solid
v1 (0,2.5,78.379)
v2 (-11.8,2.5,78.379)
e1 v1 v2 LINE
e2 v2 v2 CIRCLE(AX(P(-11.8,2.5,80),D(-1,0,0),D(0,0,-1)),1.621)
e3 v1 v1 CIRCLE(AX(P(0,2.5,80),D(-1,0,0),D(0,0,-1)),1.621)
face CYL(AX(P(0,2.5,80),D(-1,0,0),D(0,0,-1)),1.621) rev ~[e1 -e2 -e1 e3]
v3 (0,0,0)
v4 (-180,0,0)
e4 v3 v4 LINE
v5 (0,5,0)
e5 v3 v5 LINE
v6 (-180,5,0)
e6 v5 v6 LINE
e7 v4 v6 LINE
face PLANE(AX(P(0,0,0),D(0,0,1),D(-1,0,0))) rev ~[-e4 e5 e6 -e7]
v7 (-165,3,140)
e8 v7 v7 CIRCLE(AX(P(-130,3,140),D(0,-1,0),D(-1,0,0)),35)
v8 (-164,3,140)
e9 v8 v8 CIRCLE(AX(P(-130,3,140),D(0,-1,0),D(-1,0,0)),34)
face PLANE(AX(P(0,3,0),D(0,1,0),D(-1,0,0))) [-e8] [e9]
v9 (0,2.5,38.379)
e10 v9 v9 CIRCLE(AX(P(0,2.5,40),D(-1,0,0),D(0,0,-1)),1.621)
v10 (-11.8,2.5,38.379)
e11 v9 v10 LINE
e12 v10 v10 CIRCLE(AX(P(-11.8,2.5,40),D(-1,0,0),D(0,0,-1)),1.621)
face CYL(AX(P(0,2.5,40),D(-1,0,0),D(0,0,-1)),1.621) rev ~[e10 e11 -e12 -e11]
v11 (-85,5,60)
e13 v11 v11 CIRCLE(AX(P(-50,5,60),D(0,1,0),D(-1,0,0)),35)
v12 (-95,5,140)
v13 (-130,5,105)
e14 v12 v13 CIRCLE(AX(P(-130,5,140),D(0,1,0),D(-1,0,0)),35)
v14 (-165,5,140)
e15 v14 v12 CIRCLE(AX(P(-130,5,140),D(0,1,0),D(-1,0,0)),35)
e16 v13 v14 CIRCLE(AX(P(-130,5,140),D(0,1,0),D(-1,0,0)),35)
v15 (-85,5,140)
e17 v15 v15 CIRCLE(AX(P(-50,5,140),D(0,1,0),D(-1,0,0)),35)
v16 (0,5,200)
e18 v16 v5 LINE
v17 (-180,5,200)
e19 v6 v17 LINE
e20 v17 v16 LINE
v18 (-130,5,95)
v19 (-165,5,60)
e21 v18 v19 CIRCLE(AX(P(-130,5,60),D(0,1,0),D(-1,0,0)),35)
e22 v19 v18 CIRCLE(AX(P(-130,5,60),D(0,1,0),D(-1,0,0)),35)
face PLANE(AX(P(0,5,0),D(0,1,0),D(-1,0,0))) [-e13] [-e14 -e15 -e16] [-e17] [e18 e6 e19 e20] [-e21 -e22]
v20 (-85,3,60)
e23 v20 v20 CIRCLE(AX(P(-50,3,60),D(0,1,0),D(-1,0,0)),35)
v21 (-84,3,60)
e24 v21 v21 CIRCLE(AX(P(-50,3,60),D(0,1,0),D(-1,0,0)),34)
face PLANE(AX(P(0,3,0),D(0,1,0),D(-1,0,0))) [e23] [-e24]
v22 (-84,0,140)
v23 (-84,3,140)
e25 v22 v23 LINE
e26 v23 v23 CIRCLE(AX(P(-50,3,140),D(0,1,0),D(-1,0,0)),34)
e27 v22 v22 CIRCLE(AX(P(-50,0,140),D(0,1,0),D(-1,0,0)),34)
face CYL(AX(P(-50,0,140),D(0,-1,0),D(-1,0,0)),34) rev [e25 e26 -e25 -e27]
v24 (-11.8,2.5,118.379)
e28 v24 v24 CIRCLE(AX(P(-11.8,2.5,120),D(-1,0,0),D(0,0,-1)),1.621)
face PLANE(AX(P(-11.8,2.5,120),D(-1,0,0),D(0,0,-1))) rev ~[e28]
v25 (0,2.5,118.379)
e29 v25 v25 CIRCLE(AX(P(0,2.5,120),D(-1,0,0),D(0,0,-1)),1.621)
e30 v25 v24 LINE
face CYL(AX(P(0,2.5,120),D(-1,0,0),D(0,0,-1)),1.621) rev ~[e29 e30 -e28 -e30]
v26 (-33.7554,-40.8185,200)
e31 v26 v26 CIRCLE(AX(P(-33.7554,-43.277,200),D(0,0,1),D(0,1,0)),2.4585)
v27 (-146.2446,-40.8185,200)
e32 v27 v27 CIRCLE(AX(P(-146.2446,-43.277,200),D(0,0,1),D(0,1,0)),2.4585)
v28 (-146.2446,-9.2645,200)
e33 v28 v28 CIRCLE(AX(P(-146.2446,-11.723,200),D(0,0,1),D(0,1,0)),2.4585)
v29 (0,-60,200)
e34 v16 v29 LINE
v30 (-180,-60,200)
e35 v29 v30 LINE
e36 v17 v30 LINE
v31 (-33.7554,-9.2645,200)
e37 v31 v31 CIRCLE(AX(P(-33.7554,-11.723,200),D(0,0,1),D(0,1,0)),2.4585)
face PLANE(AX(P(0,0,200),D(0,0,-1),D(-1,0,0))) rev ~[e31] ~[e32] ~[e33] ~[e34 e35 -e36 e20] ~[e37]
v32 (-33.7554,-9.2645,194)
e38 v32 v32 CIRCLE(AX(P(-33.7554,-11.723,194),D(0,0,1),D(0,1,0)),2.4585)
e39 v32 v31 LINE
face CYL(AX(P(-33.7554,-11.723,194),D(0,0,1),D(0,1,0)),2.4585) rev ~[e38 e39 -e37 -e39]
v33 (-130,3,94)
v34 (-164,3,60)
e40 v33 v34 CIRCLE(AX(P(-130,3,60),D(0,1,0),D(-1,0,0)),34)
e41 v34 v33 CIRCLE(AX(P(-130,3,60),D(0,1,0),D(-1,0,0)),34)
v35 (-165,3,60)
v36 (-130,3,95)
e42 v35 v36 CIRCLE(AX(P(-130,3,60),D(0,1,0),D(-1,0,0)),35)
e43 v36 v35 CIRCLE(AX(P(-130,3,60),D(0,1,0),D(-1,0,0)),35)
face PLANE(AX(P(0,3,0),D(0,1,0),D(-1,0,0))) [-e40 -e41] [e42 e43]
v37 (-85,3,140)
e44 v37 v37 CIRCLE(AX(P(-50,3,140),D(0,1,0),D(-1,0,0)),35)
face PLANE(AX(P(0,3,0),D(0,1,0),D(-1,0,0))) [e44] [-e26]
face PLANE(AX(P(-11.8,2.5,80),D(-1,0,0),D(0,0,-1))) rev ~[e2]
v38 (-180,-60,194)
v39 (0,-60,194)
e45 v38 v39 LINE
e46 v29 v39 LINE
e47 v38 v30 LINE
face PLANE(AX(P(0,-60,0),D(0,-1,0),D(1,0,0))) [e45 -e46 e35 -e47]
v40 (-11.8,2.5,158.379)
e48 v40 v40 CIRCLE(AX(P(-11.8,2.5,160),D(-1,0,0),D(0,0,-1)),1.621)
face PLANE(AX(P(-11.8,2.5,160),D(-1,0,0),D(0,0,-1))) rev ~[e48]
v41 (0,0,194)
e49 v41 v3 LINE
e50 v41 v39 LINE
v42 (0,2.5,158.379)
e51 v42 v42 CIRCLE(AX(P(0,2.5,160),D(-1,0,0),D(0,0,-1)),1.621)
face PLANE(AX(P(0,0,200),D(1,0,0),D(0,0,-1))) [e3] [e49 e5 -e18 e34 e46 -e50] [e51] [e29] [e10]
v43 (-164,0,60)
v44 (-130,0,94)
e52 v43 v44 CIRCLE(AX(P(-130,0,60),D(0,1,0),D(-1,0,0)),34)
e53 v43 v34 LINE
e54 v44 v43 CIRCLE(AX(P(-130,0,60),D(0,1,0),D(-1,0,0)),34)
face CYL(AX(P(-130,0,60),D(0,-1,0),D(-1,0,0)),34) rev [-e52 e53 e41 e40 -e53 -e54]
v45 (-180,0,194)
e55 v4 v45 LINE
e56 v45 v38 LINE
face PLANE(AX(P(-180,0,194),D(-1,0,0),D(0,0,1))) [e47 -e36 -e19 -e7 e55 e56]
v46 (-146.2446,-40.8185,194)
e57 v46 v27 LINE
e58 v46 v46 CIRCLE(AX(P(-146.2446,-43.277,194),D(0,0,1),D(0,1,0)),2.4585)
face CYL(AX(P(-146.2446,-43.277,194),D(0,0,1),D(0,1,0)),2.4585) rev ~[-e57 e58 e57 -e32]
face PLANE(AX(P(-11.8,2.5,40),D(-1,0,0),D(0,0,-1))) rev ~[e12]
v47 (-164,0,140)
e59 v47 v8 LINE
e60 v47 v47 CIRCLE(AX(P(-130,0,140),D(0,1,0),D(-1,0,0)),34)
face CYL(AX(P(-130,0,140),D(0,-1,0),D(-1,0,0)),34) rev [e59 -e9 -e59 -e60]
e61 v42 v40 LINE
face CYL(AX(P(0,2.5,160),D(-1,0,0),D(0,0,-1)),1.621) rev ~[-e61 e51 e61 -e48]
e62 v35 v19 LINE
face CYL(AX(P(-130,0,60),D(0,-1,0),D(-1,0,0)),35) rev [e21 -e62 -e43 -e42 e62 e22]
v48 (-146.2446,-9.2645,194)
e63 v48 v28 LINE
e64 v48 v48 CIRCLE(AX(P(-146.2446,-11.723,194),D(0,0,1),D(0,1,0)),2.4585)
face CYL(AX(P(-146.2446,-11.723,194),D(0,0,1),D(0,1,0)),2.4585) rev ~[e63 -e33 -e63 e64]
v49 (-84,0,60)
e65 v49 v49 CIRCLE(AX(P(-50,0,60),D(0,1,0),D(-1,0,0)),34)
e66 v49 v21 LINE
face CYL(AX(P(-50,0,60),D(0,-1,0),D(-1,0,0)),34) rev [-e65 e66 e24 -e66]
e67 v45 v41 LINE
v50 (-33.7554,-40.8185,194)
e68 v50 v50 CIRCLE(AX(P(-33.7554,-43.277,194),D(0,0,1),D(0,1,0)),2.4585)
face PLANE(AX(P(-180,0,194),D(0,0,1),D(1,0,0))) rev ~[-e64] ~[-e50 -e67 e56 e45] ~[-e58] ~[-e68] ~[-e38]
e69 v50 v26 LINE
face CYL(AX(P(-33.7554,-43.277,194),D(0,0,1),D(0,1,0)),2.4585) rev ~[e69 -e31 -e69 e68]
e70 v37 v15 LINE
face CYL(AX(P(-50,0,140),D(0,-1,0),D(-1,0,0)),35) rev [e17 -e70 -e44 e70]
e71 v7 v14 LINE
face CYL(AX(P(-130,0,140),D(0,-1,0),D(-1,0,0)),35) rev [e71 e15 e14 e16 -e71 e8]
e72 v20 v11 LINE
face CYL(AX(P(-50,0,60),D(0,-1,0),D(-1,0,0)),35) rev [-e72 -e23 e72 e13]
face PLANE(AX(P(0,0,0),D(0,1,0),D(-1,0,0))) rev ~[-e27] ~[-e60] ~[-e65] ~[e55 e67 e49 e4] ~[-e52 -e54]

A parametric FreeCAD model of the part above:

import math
import FreeCAD as App
import Part
import Sketcher
from FreeCAD import Vector


def add_polygon(sketch, points):
    """Adds a closed chain of lines whose ends are joined by coincident constraints."""
    first, n = sketch.GeometryCount, len(points)
    for a, b in zip(points, points[1:] + points[:1]):
        sketch.addGeometry(Part.LineSegment(App.Vector(*a, 0), App.Vector(*b, 0)), False)
    for i in range(n):
        sketch.addConstraint(Sketcher.Constraint("Coincident", first + i, 2, first + (i + 1) % n, 1))

doc = App.newDocument("Part")
params = doc.addObject("Spreadsheet::Sheet", "Params")
for row, (alias, value) in enumerate([
    ("sketch1_diameter", "70 mm"),
    ("sketch1_width", "180 mm"),
    ("sketch1_height", "200 mm"),
    ("pad1_length", "5 mm"),
    ("sketch2_diameter", "70 mm"),
    ("sketch2_diameter2", "68 mm"),
    ("pad2_length", "3 mm"),
    ("hole_diameter", "3.242 mm"),
    ("hole_depth", "11.8 mm"),
    ("sketch4_height", "6 mm"),
    ("sketch4_width", "180 mm"),
    ("pad3_length", "60 mm"),
    ("hole2_diameter", "4.917 mm"),
    ("hole2_depth", "17.1 mm"),
], start=1):
    params.set(f"A{row}", alias)
    params.set(f"B{row}", "=" + value)
    params.setAlias(f"B{row}", alias)

body = doc.addObject("PartDesign::Body", "Body")

# Sketch on XZ plane
sketch1 = doc.addObject("Sketcher::SketchObject", "Sketch")
body.addObject(sketch1)
sketch1.AttachmentSupport = (doc.XZ_Plane, [""])
sketch1.MapMode = "FlatFace"
add_polygon(sketch1, [(0, 200), (0, 0), (-180, 0), (-180, 200)])  # lines 0-3
sketch1.addGeometry(Part.Circle(Vector(-50, 60, 0), Vector(0, 0, 1), 35), False)  # 4
sketch1.addGeometry(Part.Circle(Vector(-130, 60, 0), Vector(0, 0, 1), 35), False)  # 5
sketch1.addGeometry(Part.Circle(Vector(-50, 140, 0), Vector(0, 0, 1), 35), False)  # 6
sketch1.addGeometry(Part.ArcOfCircle(Part.Circle(Vector(-130, 140, 0), Vector(0, 0, 1), 35), math.radians(0), math.radians(270)), False)  # 7
sketch1.addGeometry(Part.ArcOfCircle(Part.Circle(Vector(-130, 140, 0), Vector(0, 0, 1), 35), math.radians(-90), math.radians(0)), False)  # 8
sketch1.addConstraint(Sketcher.Constraint("Tangent", 7, 1, 8, 2))
sketch1.addConstraint(Sketcher.Constraint("Coincident", 8, 1, 7, 2))
sketch1.addConstraint(Sketcher.Constraint("Vertical", 0))
sketch1.addConstraint(Sketcher.Constraint("Horizontal", 1))
sketch1.addConstraint(Sketcher.Constraint("Vertical", 2))
sketch1.addConstraint(Sketcher.Constraint("Horizontal", 3))
sketch1.addConstraint(Sketcher.Constraint("Coincident", 0, 2, -1, 1))
sketch1.addConstraint(Sketcher.Constraint("Equal", 4, 5))
sketch1.addConstraint(Sketcher.Constraint("Equal", 5, 6))
sketch1.addConstraint(Sketcher.Constraint("Equal", 6, 7))
sketch1.addConstraint(Sketcher.Constraint("Horizontal", 4, 3, 5, 3))
sketch1.addConstraint(Sketcher.Constraint("Horizontal", 6, 3, 7, 3))
sketch1.addConstraint(Sketcher.Constraint("Horizontal", 8, 3, 7, 1))
sketch1.addConstraint(Sketcher.Constraint("Vertical", 4, 3, 6, 3))
sketch1.addConstraint(Sketcher.Constraint("Vertical", 5, 3, 7, 3))
sketch1.addConstraint(Sketcher.Constraint("Vertical", 7, 3, 8, 1))
sketch1.addConstraint(Sketcher.Constraint("Diameter", 4, 70.0))
sketch1.addConstraint(Sketcher.Constraint("DistanceX", 1, 2, 1, 1, 180.0))
sketch1.addConstraint(Sketcher.Constraint("DistanceY", 0, 2, 0, 1, 200.0))
sketch1.addConstraint(Sketcher.Constraint("DistanceX", 4, 3, -1, 1, 50.0))
sketch1.addConstraint(Sketcher.Constraint("DistanceY", -1, 1, 4, 3, 60.0))
sketch1.addConstraint(Sketcher.Constraint("DistanceX", 5, 3, -1, 1, 130.0))
sketch1.addConstraint(Sketcher.Constraint("DistanceY", -1, 1, 6, 3, 140.0))
sketch1.setExpression("Constraints[20]", "Params.sketch1_diameter")
sketch1.setExpression("Constraints[21]", "Params.sketch1_width")
sketch1.setExpression("Constraints[22]", "Params.sketch1_height")
pad1 = doc.addObject("PartDesign::Pad", "Pad")
body.addObject(pad1)
pad1.Profile = sketch1
pad1.setExpression("Length", "Params.pad1_length")
pad1.Reversed = True

# Sketch on XZ plane
sketch2 = doc.addObject("Sketcher::SketchObject", "Sketch001")
body.addObject(sketch2)
sketch2.AttachmentSupport = (doc.XZ_Plane, [""])
sketch2.MapMode = "FlatFace"
sketch2.addGeometry(Part.Circle(Vector(-130, 140, 0), Vector(0, 0, 1), 35), False)
sketch2.addGeometry(Part.Circle(Vector(-130, 140, 0), Vector(0, 0, 1), 34), False)
sketch2.addGeometry(Part.Circle(Vector(-130, 60, 0), Vector(0, 0, 1), 35), False)
sketch2.addGeometry(Part.Circle(Vector(-130, 60, 0), Vector(0, 0, 1), 34), False)
sketch2.addGeometry(Part.Circle(Vector(-50, 140, 0), Vector(0, 0, 1), 35), False)
sketch2.addGeometry(Part.Circle(Vector(-50, 140, 0), Vector(0, 0, 1), 34), False)
sketch2.addGeometry(Part.Circle(Vector(-50, 60, 0), Vector(0, 0, 1), 35), False)
sketch2.addGeometry(Part.Circle(Vector(-50, 60, 0), Vector(0, 0, 1), 34), False)
sketch2.addConstraint(Sketcher.Constraint("Coincident", 1, 3, 0, 3))
sketch2.addConstraint(Sketcher.Constraint("Coincident", 3, 3, 2, 3))
sketch2.addConstraint(Sketcher.Constraint("Coincident", 5, 3, 4, 3))
sketch2.addConstraint(Sketcher.Constraint("Coincident", 7, 3, 6, 3))
sketch2.addConstraint(Sketcher.Constraint("Equal", 0, 2))
sketch2.addConstraint(Sketcher.Constraint("Equal", 1, 3))
sketch2.addConstraint(Sketcher.Constraint("Equal", 2, 4))
sketch2.addConstraint(Sketcher.Constraint("Equal", 3, 5))
sketch2.addConstraint(Sketcher.Constraint("Equal", 4, 6))
sketch2.addConstraint(Sketcher.Constraint("Equal", 5, 7))
sketch2.addConstraint(Sketcher.Constraint("Horizontal", 1, 3, 4, 3))
sketch2.addConstraint(Sketcher.Constraint("Horizontal", 3, 3, 6, 3))
sketch2.addConstraint(Sketcher.Constraint("Vertical", 1, 3, 2, 3))
sketch2.addConstraint(Sketcher.Constraint("Vertical", 5, 3, 6, 3))
sketch2.addConstraint(Sketcher.Constraint("Diameter", 0, 70.0))
sketch2.addConstraint(Sketcher.Constraint("Diameter", 1, 68.0))
sketch2.addConstraint(Sketcher.Constraint("DistanceX", 0, 3, -1, 1, 130.0))
sketch2.addConstraint(Sketcher.Constraint("DistanceY", -1, 1, 0, 3, 140.0))
sketch2.addConstraint(Sketcher.Constraint("DistanceY", -1, 1, 2, 3, 60.0))
sketch2.addConstraint(Sketcher.Constraint("DistanceX", 4, 3, -1, 1, 50.0))
sketch2.setExpression("Constraints[14]", "Params.sketch2_diameter")
sketch2.setExpression("Constraints[15]", "Params.sketch2_diameter2")
pad2 = doc.addObject("PartDesign::Pad", "Pad001")
body.addObject(pad2)
pad2.Profile = sketch2
pad2.setExpression("Length", "Params.pad2_length")
pad2.Reversed = True

# Sketch on YZ plane
sketch3 = doc.addObject("Sketcher::SketchObject", "Sketch002")
body.addObject(sketch3)
sketch3.AttachmentSupport = (doc.YZ_Plane, [""])
sketch3.MapMode = "FlatFace"
sketch3.addGeometry(Part.Circle(Vector(2.5, 40, 0), Vector(0, 0, 1), 1.6), False)
sketch3.addGeometry(Part.Circle(Vector(2.5, 80, 0), Vector(0, 0, 1), 1.6), False)
sketch3.addGeometry(Part.Circle(Vector(2.5, 120, 0), Vector(0, 0, 1), 1.6), False)
sketch3.addGeometry(Part.Circle(Vector(2.5, 160, 0), Vector(0, 0, 1), 1.6), False)
sketch3.addConstraint(Sketcher.Constraint("Equal", 0, 1))
sketch3.addConstraint(Sketcher.Constraint("Equal", 1, 2))
sketch3.addConstraint(Sketcher.Constraint("Equal", 2, 3))
sketch3.addConstraint(Sketcher.Constraint("Vertical", 0, 3, 1, 3))
sketch3.addConstraint(Sketcher.Constraint("Vertical", 1, 3, 2, 3))
sketch3.addConstraint(Sketcher.Constraint("Vertical", 2, 3, 3, 3))
sketch3.addConstraint(Sketcher.Constraint("Diameter", 0, 3.242))
sketch3.addConstraint(Sketcher.Constraint("DistanceY", -1, 1, 0, 3, 40.0))
sketch3.addConstraint(Sketcher.Constraint("DistanceY", -1, 1, 1, 3, 80.0))
sketch3.addConstraint(Sketcher.Constraint("DistanceY", -1, 1, 2, 3, 120.0))
sketch3.addConstraint(Sketcher.Constraint("DistanceY", -1, 1, 3, 3, 160.0))
sketch3.addConstraint(Sketcher.Constraint("DistanceX", -1, 1, 0, 3, 2.5))
doc.recompute()
hole = doc.addObject("PartDesign::Hole", "Hole")
body.addObject(hole)
hole.Profile = sketch3
hole.ThreadType = "None"
hole.setExpression("Diameter", "Params.hole_diameter")
hole.DepthType = "Dimension"
hole.setExpression("Depth", "Params.hole_depth")
hole.DrillPoint = "Flat"

# Sketch on XZ plane
sketch4 = doc.addObject("Sketcher::SketchObject", "Sketch003")
body.addObject(sketch4)
sketch4.AttachmentSupport = (doc.XZ_Plane, [""])
sketch4.MapMode = "FlatFace"
add_polygon(sketch4, [(0, 194), (0, 200), (-180, 200), (-180, 194)])  # lines 0-3
sketch4.addConstraint(Sketcher.Constraint("Vertical", 0))
sketch4.addConstraint(Sketcher.Constraint("Horizontal", 1))
sketch4.addConstraint(Sketcher.Constraint("Vertical", 2))
sketch4.addConstraint(Sketcher.Constraint("Horizontal", 3))
sketch4.addConstraint(Sketcher.Constraint("PointOnObject", 0, 2, -2))
sketch4.addConstraint(Sketcher.Constraint("DistanceY", 0, 1, 0, 2, 6.0))
sketch4.addConstraint(Sketcher.Constraint("DistanceX", 1, 2, 1, 1, 180.0))
sketch4.addConstraint(Sketcher.Constraint("DistanceY", -1, 1, 0, 2, 200.0))
sketch4.setExpression("Constraints[9]", "Params.sketch4_height")
sketch4.setExpression("Constraints[10]", "Params.sketch4_width")
pad3 = doc.addObject("PartDesign::Pad", "Pad002")
body.addObject(pad3)
pad3.Profile = sketch4
pad3.setExpression("Length", "Params.pad3_length")

# Sketch on XY plane
sketch5 = doc.addObject("Sketcher::SketchObject", "Sketch004")
body.addObject(sketch5)
sketch5.AttachmentSupport = (doc.XY_Plane, [""])
sketch5.MapMode = "FlatFace"
sketch5.AttachmentOffset = App.Placement(Vector(0, 0, 194), App.Rotation())
sketch5.addGeometry(Part.Circle(Vector(-33.8, -11.7, 0), Vector(0, 0, 1), 2.5), False)
sketch5.addGeometry(Part.Circle(Vector(-33.8, -43.3, 0), Vector(0, 0, 1), 2.5), False)
sketch5.addGeometry(Part.Circle(Vector(-146.2, -11.7, 0), Vector(0, 0, 1), 2.5), False)
sketch5.addGeometry(Part.Circle(Vector(-146.2, -43.3, 0), Vector(0, 0, 1), 2.5), False)
sketch5.addConstraint(Sketcher.Constraint("Equal", 0, 1))
sketch5.addConstraint(Sketcher.Constraint("Equal", 1, 2))
sketch5.addConstraint(Sketcher.Constraint("Equal", 2, 3))
sketch5.addConstraint(Sketcher.Constraint("Horizontal", 0, 3, 2, 3))
sketch5.addConstraint(Sketcher.Constraint("Horizontal", 1, 3, 3, 3))
sketch5.addConstraint(Sketcher.Constraint("Vertical", 0, 3, 1, 3))
sketch5.addConstraint(Sketcher.Constraint("Vertical", 2, 3, 3, 3))
sketch5.addConstraint(Sketcher.Constraint("Diameter", 0, 4.917))
sketch5.addConstraint(Sketcher.Constraint("DistanceY", 0, 3, -1, 1, 11.723))
sketch5.addConstraint(Sketcher.Constraint("DistanceY", 1, 3, -1, 1, 43.277))
sketch5.addConstraint(Sketcher.Constraint("DistanceX", 0, 3, -1, 1, 33.7554))
sketch5.addConstraint(Sketcher.Constraint("DistanceX", 2, 3, -1, 1, 146.2446))
doc.recompute()
hole2 = doc.addObject("PartDesign::Hole", "Hole001")
body.addObject(hole2)
hole2.Profile = sketch5
hole2.ThreadType = "None"
hole2.setExpression("Diameter", "Params.hole2_diameter")
hole2.DepthType = "Dimension"
hole2.setExpression("Depth", "Params.hole2_depth")
hole2.DrillPoint = "Flat"
hole2.Reversed = True

doc.recompute()
